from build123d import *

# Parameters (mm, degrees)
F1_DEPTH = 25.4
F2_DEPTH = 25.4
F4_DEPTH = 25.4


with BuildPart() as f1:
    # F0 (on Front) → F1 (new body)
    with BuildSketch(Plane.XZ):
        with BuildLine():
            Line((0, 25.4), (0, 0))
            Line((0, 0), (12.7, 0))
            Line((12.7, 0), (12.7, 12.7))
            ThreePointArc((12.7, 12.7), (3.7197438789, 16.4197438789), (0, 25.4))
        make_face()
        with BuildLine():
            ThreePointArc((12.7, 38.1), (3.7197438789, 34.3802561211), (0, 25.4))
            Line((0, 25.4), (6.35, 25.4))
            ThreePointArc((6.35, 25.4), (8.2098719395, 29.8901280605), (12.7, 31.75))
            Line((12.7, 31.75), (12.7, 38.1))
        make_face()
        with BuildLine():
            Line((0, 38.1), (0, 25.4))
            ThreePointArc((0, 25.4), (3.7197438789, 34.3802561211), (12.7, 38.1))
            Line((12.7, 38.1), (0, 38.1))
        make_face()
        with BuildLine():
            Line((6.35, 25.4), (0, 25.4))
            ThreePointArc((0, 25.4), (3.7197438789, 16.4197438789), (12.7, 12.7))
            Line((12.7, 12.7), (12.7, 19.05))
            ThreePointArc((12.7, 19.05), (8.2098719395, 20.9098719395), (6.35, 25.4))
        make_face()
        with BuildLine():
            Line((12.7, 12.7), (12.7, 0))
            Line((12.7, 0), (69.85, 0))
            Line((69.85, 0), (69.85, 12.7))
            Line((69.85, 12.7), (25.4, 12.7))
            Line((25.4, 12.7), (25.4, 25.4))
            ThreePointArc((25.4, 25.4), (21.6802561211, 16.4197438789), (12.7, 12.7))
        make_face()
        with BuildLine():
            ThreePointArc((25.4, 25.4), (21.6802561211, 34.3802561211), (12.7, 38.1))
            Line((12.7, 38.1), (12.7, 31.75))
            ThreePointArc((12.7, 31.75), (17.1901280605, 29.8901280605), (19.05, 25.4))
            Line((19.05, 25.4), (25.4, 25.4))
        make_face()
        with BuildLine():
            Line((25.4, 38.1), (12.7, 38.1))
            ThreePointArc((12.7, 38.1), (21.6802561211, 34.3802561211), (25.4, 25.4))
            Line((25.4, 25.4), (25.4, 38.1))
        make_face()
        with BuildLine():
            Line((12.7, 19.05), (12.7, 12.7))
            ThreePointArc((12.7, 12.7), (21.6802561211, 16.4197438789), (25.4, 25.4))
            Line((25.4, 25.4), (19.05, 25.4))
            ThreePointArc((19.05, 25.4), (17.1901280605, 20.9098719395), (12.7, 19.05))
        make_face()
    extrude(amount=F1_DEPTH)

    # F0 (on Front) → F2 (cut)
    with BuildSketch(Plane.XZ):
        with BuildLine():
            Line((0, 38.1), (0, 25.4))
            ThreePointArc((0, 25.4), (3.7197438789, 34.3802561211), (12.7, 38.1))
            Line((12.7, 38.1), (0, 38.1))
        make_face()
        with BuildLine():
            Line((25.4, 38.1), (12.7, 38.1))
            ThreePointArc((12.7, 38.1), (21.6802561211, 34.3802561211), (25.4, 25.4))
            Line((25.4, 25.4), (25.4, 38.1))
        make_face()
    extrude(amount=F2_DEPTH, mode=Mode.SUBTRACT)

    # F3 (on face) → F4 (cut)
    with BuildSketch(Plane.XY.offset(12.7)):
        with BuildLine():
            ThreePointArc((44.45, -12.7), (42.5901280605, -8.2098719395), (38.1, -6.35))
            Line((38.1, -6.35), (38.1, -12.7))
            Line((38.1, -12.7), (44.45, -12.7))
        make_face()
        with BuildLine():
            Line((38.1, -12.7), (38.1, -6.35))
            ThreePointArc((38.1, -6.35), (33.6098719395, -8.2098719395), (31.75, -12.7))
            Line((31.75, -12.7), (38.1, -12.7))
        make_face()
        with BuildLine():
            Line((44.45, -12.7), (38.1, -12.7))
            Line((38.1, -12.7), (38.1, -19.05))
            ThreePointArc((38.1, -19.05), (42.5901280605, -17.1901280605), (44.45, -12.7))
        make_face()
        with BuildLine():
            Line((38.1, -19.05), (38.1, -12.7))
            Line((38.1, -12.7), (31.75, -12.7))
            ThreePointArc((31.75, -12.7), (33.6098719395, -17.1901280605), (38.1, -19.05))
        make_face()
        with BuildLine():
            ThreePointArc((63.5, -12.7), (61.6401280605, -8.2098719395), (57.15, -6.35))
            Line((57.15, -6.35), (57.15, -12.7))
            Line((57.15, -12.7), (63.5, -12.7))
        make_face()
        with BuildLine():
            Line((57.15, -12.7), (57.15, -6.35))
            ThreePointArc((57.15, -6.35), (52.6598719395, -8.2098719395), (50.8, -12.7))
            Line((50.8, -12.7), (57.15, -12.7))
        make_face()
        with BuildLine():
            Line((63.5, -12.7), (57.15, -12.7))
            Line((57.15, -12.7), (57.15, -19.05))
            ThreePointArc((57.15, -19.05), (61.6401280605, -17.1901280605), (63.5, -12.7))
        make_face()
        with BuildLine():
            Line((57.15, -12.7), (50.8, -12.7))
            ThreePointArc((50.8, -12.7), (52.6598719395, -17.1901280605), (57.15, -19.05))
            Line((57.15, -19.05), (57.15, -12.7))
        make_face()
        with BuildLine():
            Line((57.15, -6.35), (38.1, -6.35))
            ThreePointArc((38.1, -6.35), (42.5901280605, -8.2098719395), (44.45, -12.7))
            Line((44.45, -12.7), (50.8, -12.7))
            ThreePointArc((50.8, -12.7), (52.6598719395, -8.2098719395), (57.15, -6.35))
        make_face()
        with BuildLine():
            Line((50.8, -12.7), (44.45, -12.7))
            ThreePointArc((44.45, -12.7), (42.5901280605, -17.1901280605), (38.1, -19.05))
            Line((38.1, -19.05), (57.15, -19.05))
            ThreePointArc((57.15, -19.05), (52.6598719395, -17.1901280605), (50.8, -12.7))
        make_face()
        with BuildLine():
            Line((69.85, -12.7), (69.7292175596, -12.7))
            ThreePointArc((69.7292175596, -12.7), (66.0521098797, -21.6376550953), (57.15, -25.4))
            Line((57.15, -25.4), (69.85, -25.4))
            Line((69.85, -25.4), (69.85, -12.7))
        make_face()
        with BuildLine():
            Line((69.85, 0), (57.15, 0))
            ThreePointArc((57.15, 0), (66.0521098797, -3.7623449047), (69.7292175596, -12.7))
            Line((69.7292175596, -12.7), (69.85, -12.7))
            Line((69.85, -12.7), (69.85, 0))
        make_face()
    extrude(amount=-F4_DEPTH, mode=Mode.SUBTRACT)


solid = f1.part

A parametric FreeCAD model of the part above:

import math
import FreeCAD as App
import Part
import Sketcher
Q = App.Units.Quantity


def add_polygon(sketch, points):
    """Adds a closed chain of lines whose ends are joined by coincident constraints."""
    first, n = sketch.GeometryCount, len(points)
    for a, b in zip(points, points[1:] + points[:1]):
        sketch.addGeometry(Part.LineSegment(App.Vector(*a, 0), App.Vector(*b, 0)), False)
    for i in range(n):
        sketch.addConstraint(Sketcher.Constraint("Coincident", first + i, 2, first + (i + 1) % n, 1))

doc = App.newDocument("Part")
body = doc.addObject("PartDesign::Body", "Body")

# Sketch on XZ plane
sketch1 = body.newObject("Sketcher::SketchObject", "Sketch")
sketch1.AttachmentSupport = (doc.getObject("XZ_Plane"), [""])
sketch1.MapMode = "FlatFace"
add_polygon(sketch1, [(25, 13), (25, 38), (0, 38), (0, 0), (70, 0), (70, 13)])  # lines 0-5
sketch1.addGeometry(Part.ArcOfCircle(Part.Circle(App.Vector(13, 25, 0), App.Vector(0, 0, 1), 6), math.radians(0), math.radians(90)), False)  # 6
sketch1.addGeometry(Part.ArcOfCircle(Part.Circle(App.Vector(13, 25, 0), App.Vector(0, 0, 1), 6), math.radians(-90), math.radians(0)), False)  # 7
sketch1.addGeometry(Part.ArcOfCircle(Part.Circle(App.Vector(13, 25, 0), App.Vector(0, 0, 1), 6), math.radians(180), math.radians(270)), False)  # 8
sketch1.addGeometry(Part.ArcOfCircle(Part.Circle(App.Vector(13, 25, 0), App.Vector(0, 0, 1), 6), math.radians(90), math.radians(180)), False)  # 9
sketch1.addConstraint([
    Sketcher.Constraint("Tangent", 6, 1, 7, 2),
    Sketcher.Constraint("Tangent", 7, 1, 8, 2),
    Sketcher.Constraint("Tangent", 8, 1, 9, 2),
    Sketcher.Constraint("Tangent", 9, 1, 6, 2),
    Sketcher.Constraint("Vertical", 0),
    Sketcher.Constraint("Horizontal", 1),
    Sketcher.Constraint("Vertical", 2),
    Sketcher.Constraint("Horizontal", 3),
    Sketcher.Constraint("Vertical", 4),
    Sketcher.Constraint("Horizontal", 5),
    Sketcher.Constraint("Coincident", 2, 2, -1, 1),
    Sketcher.Constraint("Equal", 6, 7),
    Sketcher.Constraint("Horizontal", 9, 3, 6, 1),
    Sketcher.Constraint("Horizontal", 6, 1, 8, 1),
    Sketcher.Constraint("Vertical", 9, 3, 7, 1),
    Sketcher.Constraint("Vertical", 7, 1, 9, 1),
    Sketcher.Constraint("Equal", 1, 0),
    Sketcher.Constraint("DistanceX", 1, 2, 1, 1, Q("1 in")),
    Sketcher.Constraint("Radius", 6, Q("0.25 in")),
    Sketcher.Constraint("DistanceY", 2, 2, 2, 1, Q("1.5 in")),
    Sketcher.Constraint("DistanceY", -1, 1, 6, 3, Q("1 in")),
    Sketcher.Constraint("DistanceX", 3, 1, 3, 2, Q("2.75 in")),
    Sketcher.Constraint("DistanceX", -1, 1, 6, 3, Q("0.5 in")),
])
pad1 = body.newObject("PartDesign::Pad", "Pad")
pad1.Profile = sketch1
pad1.Length = Q("1 in")

# Sketch on XZ plane
sketch2 = body.newObject("Sketcher::SketchObject", "Sketch001")
sketch2.AttachmentSupport = (doc.getObject("XZ_Plane"), [""])
sketch2.MapMode = "FlatFace"
sketch2.addGeometry([
    Part.LineSegment(App.Vector(0, 38, 0), App.Vector(0, 25, 0)),  # 0
    Part.ArcOfCircle(Part.Circle(App.Vector(13, 25, 0), App.Vector(0, 0, 1), 13), math.radians(90), math.radians(180)),  # 1
    Part.LineSegment(App.Vector(13, 38, 0), App.Vector(0, 38, 0)),  # 2
    Part.LineSegment(App.Vector(25, 38, 0), App.Vector(13, 38, 0)),  # 3
    Part.ArcOfCircle(Part.Circle(App.Vector(13, 25, 0), App.Vector(0, 0, 1), 13), math.radians(0), math.radians(90)),  # 4
    Part.LineSegment(App.Vector(25, 25, 0), App.Vector(25, 38, 0)),  # 5
], False)
sketch2.addConstraint([
    Sketcher.Constraint("Tangent", 0, 2, 1, 2),
    Sketcher.Constraint("Tangent", 1, 1, 2, 1),
    Sketcher.Constraint("Coincident", 2, 2, 0, 1),
    Sketcher.Constraint("Tangent", 3, 2, 4, 2),
    Sketcher.Constraint("Tangent", 4, 1, 5, 1),
    Sketcher.Constraint("Coincident", 5, 2, 3, 1),
    Sketcher.Constraint("Vertical", 0),
    Sketcher.Constraint("Horizontal", 2),
    Sketcher.Constraint("Horizontal", 3),
    Sketcher.Constraint("Vertical", 5),
    Sketcher.Constraint("Coincident", 4, 3, 1, 3),
    Sketcher.Constraint("Equal", 1, 4),
    Sketcher.Constraint("PointOnObject", 0, 2, -2),
    Sketcher.Constraint("Radius", 1, Q("0.5 in")),
    Sketcher.Constraint("DistanceY", -1, 1, 1, 3, Q("1 in")),
])
pocket1 = body.newObject("PartDesign::Pocket", "Pocket")
pocket1.Profile = sketch2
pocket1.Length = Q("1 in")
pocket1.Reversed = True

# Sketch on XY plane
sketch3 = body.newObject("Sketcher::SketchObject", "Sketch002")
sketch3.AttachmentSupport = (doc.getObject("XY_Plane"), [""])
sketch3.MapMode = "FlatFace"
sketch3.AttachmentOffset = App.Placement(App.Vector(0, 0, 0.5 * 25.4), App.Rotation())
sketch3.addGeometry([
    Part.ArcOfCircle(Part.Circle(App.Vector(38, -13, 0), App.Vector(0, 0, 1), 6), math.radians(90), math.radians(180)),  # 0
    Part.ArcOfCircle(Part.Circle(App.Vector(38, -13, 0), App.Vector(0, 0, 1), 6), math.radians(180), math.radians(270)),  # 1
    Part.LineSegment(App.Vector(38, -19, 0), App.Vector(57, -19, 0)),  # 2
    Part.ArcOfCircle(Part.Circle(App.Vector(57, -13, 0), App.Vector(0, 0, 1), 6), math.radians(-90), math.radians(0)),  # 3
    Part.ArcOfCircle(Part.Circle(App.Vector(57, -13, 0), App.Vector(0, 0, 1), 6), math.radians(0), math.radians(90)),  # 4
    Part.LineSegment(App.Vector(57, -6, 0), App.Vector(38, -6, 0)),  # 5
    Part.ArcOfCircle(Part.Circle(App.Vector(57, -13, 0), App.Vector(0, 0, 1), 13), math.radians(-89), math.radians(0)),  # 6
    Part.LineSegment(App.Vector(57, -25, 0), App.Vector(70, -25, 0)),  # 7
    Part.LineSegment(App.Vector(70, -25, 0), App.Vector(70, 0, 0)),  # 8
    Part.LineSegment(App.Vector(70, 0, 0), App.Vector(57, 0, 0)),  # 9
    Part.ArcOfCircle(Part.Circle(App.Vector(57, -13, 0), App.Vector(0, 0, 1), 13), math.radians(0), math.radians(89)),  # 10
], False)
sketch3.addConstraint([
    Sketcher.Constraint("Tangent", 0, 2, 1, 1),
    Sketcher.Constraint("Tangent", 1, 2, 2, 1),
    Sketcher.Constraint("Tangent", 2, 2, 3, 1),
    Sketcher.Constraint("Tangent", 3, 2, 4, 1),
    Sketcher.Constraint("Tangent", 4, 2, 5, 1),
    Sketcher.Constraint("Tangent", 5, 2, 0, 1),
    Sketcher.Constraint("Coincident", 6, 1, 7, 1),
    Sketcher.Constraint("Coincident", 7, 2, 8, 1),
    Sketcher.Constraint("Coincident", 8, 2, 9, 1),
    Sketcher.Constraint("Coincident", 9, 2, 10, 2),
    Sketcher.Constraint("Tangent", 10, 1, 6, 2),
    Sketcher.Constraint("Horizontal", 2),
    Sketcher.Constraint("Horizontal", 5),
    Sketcher.Constraint("Horizontal", 7),
    Sketcher.Constraint("Vertical", 8),
    Sketcher.Constraint("Horizontal", 9),
    Sketcher.Constraint("Equal", 0, 1),
    Sketcher.Constraint("Equal", 1, 3),
    Sketcher.Constraint("Equal", 6, 10),
    Sketcher.Constraint("PointOnObject", 8, 2, -1),
    Sketcher.Constraint("Horizontal", 4, 3, 6, 3),
    Sketcher.Constraint("Horizontal", 10, 3, 0, 2),
    Sketcher.Constraint("Horizontal", 0, 2, 3, 2),
    Sketcher.Constraint("Horizontal", 3, 2, 10, 1),
    Sketcher.Constraint("Vertical", 4, 2, 6, 1),
    Sketcher.Constraint("Vertical", 6, 1, 9, 2),
    Sketcher.Constraint("DistanceY", 8, 1, 8, 2, Q("1 in")),
    Sketcher.Constraint("Radius", 0, Q("0.25 in")),
    Sketcher.Constraint("DistanceX", 7, 1, 7, 2, Q("0.5 in")),
    Sketcher.Constraint("DistanceX", 0, 2, 3, 3, Q("1 in")),
    Sketcher.Constraint("DistanceX", -1, 1, 0, 3, Q("1.5 in")),
    Sketcher.Constraint("Radius", 6, Q("12.70058 mm")),
])
pocket2 = body.newObject("PartDesign::Pocket", "Pocket001")
pocket2.Profile = sketch3
pocket2.Length = Q("1 in")

doc.recompute()
